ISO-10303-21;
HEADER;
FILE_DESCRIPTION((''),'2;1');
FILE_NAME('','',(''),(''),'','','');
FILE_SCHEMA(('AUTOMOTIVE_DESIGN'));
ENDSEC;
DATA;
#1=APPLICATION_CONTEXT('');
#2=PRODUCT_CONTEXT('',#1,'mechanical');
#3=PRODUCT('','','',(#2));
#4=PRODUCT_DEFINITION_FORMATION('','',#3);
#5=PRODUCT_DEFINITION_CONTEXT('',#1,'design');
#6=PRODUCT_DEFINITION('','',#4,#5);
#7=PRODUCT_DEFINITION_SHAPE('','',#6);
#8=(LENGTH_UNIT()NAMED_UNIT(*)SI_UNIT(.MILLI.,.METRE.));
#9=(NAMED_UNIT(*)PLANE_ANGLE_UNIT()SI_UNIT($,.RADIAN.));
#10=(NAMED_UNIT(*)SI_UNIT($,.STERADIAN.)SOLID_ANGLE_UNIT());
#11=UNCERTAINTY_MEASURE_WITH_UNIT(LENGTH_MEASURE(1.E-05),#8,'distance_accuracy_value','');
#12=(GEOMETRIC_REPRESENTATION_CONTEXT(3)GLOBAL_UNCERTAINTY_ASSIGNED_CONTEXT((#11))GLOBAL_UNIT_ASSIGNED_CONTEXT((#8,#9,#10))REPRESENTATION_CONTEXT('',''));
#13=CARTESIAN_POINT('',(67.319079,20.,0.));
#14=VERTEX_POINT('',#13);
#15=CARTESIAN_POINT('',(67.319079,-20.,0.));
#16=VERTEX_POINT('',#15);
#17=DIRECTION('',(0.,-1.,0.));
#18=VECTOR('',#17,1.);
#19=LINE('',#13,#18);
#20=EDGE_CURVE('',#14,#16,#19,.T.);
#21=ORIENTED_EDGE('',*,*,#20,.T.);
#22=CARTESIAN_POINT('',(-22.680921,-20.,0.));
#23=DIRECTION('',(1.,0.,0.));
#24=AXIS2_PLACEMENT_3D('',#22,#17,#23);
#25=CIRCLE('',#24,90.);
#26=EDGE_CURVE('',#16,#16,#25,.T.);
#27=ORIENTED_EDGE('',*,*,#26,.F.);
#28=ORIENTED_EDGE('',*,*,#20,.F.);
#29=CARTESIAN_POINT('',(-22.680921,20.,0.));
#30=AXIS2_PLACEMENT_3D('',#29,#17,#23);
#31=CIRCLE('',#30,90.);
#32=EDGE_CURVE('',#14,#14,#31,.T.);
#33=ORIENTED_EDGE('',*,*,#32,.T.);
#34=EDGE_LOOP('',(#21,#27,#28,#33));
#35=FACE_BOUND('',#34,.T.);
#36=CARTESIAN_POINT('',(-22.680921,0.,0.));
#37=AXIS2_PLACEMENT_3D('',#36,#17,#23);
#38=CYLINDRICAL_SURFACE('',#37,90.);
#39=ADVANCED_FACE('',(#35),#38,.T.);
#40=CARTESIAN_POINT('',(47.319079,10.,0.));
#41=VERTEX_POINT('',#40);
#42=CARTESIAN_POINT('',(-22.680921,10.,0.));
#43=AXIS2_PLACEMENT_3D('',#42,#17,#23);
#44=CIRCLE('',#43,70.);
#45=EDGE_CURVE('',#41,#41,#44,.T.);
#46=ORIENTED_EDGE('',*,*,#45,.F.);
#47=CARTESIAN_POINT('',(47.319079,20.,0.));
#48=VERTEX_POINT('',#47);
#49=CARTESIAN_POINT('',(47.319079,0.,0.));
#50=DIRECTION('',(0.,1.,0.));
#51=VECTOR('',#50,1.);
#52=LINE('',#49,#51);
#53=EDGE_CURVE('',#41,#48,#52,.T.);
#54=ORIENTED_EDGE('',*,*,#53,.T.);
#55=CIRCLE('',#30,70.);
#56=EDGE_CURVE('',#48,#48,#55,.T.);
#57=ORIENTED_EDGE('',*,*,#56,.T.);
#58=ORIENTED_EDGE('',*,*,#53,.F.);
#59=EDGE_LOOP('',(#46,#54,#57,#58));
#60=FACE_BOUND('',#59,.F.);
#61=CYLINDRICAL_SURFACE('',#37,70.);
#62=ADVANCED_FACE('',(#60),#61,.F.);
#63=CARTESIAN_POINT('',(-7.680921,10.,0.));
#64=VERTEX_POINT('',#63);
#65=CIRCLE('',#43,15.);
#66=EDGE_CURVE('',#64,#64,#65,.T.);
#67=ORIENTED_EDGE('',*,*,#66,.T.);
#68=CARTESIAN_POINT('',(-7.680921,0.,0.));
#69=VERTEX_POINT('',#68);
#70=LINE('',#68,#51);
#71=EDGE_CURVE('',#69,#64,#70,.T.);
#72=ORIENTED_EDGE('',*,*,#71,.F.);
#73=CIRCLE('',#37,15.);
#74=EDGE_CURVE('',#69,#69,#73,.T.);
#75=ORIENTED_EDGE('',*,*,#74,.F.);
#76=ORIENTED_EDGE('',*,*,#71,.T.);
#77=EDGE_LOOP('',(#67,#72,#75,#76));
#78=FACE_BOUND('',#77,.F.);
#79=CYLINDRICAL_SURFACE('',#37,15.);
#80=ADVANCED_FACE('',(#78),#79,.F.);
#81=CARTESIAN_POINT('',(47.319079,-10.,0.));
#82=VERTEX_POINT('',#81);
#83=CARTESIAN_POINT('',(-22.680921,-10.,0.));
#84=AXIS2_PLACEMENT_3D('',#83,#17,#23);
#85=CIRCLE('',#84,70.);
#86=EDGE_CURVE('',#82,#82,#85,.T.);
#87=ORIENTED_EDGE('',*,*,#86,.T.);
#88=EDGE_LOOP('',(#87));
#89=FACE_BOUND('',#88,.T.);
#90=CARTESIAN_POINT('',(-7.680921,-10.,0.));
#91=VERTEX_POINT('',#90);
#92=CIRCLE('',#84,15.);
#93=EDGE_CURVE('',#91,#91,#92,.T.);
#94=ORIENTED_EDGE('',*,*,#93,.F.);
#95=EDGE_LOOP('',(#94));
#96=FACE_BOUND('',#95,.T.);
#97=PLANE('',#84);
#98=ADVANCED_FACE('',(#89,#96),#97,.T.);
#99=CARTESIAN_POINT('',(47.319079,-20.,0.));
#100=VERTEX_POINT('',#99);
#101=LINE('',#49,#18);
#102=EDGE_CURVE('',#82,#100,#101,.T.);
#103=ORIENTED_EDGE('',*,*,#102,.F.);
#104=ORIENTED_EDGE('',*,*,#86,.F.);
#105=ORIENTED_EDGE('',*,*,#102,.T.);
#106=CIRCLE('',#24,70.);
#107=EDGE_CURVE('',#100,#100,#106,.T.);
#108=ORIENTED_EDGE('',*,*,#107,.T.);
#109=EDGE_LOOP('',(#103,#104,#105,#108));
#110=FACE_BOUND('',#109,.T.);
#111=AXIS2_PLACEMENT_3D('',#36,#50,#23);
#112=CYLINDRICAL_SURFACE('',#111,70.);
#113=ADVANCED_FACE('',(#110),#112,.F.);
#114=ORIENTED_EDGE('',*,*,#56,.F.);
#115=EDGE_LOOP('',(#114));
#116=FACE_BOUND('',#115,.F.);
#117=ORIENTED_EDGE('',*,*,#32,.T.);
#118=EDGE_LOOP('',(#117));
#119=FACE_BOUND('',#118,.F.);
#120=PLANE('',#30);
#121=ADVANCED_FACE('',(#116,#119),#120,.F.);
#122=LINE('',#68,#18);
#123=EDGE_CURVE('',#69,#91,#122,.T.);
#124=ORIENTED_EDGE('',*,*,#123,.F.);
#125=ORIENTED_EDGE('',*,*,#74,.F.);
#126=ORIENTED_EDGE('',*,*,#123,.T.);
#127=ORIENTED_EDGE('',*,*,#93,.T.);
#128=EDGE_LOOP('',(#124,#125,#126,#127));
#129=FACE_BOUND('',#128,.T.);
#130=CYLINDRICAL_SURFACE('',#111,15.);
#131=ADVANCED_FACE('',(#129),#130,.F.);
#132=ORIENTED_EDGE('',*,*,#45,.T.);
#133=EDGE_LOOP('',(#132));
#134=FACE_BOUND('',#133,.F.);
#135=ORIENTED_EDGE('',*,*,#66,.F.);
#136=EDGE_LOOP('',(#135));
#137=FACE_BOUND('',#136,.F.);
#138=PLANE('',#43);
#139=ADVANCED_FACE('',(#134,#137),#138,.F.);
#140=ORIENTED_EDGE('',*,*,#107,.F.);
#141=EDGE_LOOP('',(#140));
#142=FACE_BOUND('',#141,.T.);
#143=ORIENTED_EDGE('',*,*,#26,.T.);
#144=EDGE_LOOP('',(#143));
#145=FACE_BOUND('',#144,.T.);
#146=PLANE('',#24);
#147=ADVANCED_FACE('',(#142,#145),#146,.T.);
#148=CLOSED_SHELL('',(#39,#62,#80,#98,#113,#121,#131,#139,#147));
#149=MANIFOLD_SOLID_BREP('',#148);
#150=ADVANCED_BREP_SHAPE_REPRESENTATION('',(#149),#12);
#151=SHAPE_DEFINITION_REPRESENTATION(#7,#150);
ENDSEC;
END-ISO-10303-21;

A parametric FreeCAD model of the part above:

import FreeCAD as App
import Part
import Sketcher
from FreeCAD import Vector
Q = App.Units.Quantity

doc = App.newDocument("Part")
params = doc.addObject("Spreadsheet::Sheet", "Params")
for row, (alias, value) in enumerate([
    ("sketch1_diameter", "180 mm"),
    ("sketch1_diameter2", "140 mm"),
    ("pad1_length", "20 mm"),
    ("pad1_length2", "20 mm"),
    ("sketch2_diameter", "140 mm"),
    ("sketch2_diameter2", "30 mm"),
    ("pad2_length", "10 mm"),
    ("pad2_length2", "10 mm"),
], start=1):
    params.set(f"A{row}", alias)
    params.set(f"B{row}", "=" + value)
    params.setAlias(f"B{row}", alias)

body = doc.addObject("PartDesign::Body", "Body")

# Sketch on XZ plane
sketch1 = body.newObject("Sketcher::SketchObject", "Sketch")
sketch1.AttachmentSupport = (doc.getObject("XZ_Plane"), [""])
sketch1.MapMode = "FlatFace"
sketch1.addGeometry(Part.Circle(Vector(-22.680921, 0, 0), Vector(0, 0, 1), 90), False)
sketch1.addGeometry(Part.Circle(Vector(-22.680921, 0, 0), Vector(0, 0, 1), 70), False)
sketch1.addConstraint(Sketcher.Constraint("Coincident", 1, 3, 0, 3))
sketch1.addConstraint(Sketcher.Constraint("PointOnObject", 0, 3, -1))
sketch1.addConstraint(Sketcher.Constraint("Diameter", 0, Q("180 mm")))
sketch1.addConstraint(Sketcher.Constraint("Diameter", 1, Q("140 mm")))
sketch1.addConstraint(Sketcher.Constraint("DistanceX", 0, 3, -1, 1, Q("22.680921 mm")))
sketch1.setExpression("Constraints[2]", "Params.sketch1_diameter")
sketch1.setExpression("Constraints[3]", "Params.sketch1_diameter2")
pad1 = body.newObject("PartDesign::Pad", "Pad")
pad1.Profile = sketch1
pad1.Type = "TwoLengths"
pad1.setExpression("Length", "Params.pad1_length")
pad1.setExpression("Length2", "Params.pad1_length2")

# Sketch on XZ plane
sketch2 = body.newObject("Sketcher::SketchObject", "Sketch001")
sketch2.AttachmentSupport = (doc.getObject("XZ_Plane"), [""])
sketch2.MapMode = "FlatFace"
sketch2.addGeometry(Part.Circle(Vector(-22.680921, 0, 0), Vector(0, 0, 1), 70), False)
sketch2.addGeometry(Part.Circle(Vector(-22.680921, 0, 0), Vector(0, 0, 1), 15), False)
sketch2.addConstraint(Sketcher.Constraint("Coincident", 1, 3, 0, 3))
sketch2.addConstraint(Sketcher.Constraint("PointOnObject", 0, 3, -1))
sketch2.addConstraint(Sketcher.Constraint("Diameter", 0, Q("140 mm")))
sketch2.addConstraint(Sketcher.Constraint("Diameter", 1, Q("30 mm")))
sketch2.addConstraint(Sketcher.Constraint("DistanceX", 0, 3, -1, 1, Q("22.680921 mm")))
sketch2.setExpression("Constraints[2]", "Params.sketch2_diameter")
sketch2.setExpression("Constraints[3]", "Params.sketch2_diameter2")
pad2 = body.newObject("PartDesign::Pad", "Pad001")
pad2.Profile = sketch2
pad2.Type = "TwoLengths"
pad2.setExpression("Length", "Params.pad2_length")
pad2.setExpression("Length2", "Params.pad2_length2")

doc.recompute()
